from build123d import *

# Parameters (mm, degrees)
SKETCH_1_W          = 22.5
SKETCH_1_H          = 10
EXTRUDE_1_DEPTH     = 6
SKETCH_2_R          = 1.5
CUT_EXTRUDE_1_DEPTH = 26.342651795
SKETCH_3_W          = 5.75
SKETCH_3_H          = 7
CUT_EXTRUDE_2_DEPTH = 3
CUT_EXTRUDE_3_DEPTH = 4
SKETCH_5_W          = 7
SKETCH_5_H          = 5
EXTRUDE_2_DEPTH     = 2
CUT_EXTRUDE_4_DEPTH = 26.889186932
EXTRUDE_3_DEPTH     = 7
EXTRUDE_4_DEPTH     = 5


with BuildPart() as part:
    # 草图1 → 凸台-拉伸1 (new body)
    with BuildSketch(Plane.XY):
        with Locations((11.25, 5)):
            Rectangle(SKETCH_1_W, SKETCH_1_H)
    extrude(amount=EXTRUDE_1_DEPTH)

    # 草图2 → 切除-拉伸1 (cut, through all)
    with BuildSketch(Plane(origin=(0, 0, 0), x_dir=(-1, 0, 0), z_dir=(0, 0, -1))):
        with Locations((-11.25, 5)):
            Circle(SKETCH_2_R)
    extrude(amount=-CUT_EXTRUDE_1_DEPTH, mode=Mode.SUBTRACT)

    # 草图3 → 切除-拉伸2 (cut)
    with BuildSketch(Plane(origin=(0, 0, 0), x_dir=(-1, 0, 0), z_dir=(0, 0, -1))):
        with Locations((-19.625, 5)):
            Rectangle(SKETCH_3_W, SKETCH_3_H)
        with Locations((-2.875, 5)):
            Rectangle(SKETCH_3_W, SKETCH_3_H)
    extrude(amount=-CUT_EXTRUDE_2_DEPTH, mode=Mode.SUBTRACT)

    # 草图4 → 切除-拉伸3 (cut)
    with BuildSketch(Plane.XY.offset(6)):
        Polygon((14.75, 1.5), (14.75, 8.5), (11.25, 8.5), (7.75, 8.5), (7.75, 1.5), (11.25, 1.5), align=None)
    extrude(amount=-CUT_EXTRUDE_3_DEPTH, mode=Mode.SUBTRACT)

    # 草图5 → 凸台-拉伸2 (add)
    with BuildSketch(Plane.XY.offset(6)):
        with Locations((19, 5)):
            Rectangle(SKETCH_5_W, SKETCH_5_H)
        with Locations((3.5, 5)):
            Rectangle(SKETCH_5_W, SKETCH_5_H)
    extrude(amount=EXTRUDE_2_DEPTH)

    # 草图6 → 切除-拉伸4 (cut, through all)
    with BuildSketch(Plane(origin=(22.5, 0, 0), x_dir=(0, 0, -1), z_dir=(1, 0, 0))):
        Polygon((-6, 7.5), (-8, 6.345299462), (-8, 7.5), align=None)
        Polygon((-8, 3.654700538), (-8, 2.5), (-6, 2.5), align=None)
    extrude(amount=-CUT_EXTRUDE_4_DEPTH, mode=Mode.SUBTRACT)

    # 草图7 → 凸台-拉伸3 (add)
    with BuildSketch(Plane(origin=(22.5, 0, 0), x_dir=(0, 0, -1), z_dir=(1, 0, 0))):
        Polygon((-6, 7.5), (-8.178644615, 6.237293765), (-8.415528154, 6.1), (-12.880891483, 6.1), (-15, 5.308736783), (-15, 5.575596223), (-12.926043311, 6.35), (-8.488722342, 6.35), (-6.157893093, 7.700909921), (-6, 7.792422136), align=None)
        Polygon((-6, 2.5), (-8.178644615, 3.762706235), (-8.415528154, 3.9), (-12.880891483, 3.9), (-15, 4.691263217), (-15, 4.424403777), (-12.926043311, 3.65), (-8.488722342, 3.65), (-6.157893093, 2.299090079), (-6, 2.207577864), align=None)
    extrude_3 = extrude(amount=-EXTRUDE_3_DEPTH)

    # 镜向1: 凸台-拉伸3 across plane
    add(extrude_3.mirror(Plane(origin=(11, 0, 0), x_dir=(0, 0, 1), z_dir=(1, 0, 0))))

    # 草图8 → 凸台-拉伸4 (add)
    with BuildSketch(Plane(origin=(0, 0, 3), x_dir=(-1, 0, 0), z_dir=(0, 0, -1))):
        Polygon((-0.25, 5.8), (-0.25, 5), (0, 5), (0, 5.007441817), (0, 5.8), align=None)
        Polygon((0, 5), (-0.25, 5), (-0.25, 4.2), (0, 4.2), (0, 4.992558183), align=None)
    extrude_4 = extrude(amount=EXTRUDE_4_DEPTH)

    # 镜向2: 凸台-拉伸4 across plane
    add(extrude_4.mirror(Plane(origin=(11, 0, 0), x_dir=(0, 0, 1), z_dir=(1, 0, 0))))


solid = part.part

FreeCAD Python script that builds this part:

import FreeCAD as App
import Part
import Sketcher
from FreeCAD import Vector
Q = App.Units.Quantity


def add_polygon(sketch, points):
    """Adds a closed chain of lines whose ends are joined by coincident constraints."""
    first, n = sketch.GeometryCount, len(points)
    for a, b in zip(points, points[1:] + points[:1]):
        sketch.addGeometry(Part.LineSegment(App.Vector(*a, 0), App.Vector(*b, 0)), False)
    for i in range(n):
        sketch.addConstraint(Sketcher.Constraint("Coincident", first + i, 2, first + (i + 1) % n, 1))

doc = App.newDocument("Part")
body = doc.addObject("PartDesign::Body", "Body")

# Sketch on XY plane
sketch1 = body.newObject("Sketcher::SketchObject", "Sketch")
sketch1.AttachmentSupport = (doc.getObject("XY_Plane"), [""])
sketch1.MapMode = "FlatFace"
add_polygon(sketch1, [(0, 10), (0, 0), (22, 0), (22, 10)])  # lines 0-3
sketch1.addConstraint(Sketcher.Constraint("Vertical", 0))
sketch1.addConstraint(Sketcher.Constraint("Horizontal", 1))
sketch1.addConstraint(Sketcher.Constraint("Vertical", 2))
sketch1.addConstraint(Sketcher.Constraint("Horizontal", 3))
sketch1.addConstraint(Sketcher.Constraint("Coincident", 0, 2, -1, 1))
sketch1.addConstraint(Sketcher.Constraint("DistanceY", 0, 2, 0, 1, Q("10 mm")))
sketch1.addConstraint(Sketcher.Constraint("DistanceX", 1, 1, 1, 2, Q("22.5 mm")))
pad1 = body.newObject("PartDesign::Pad", "Pad")
pad1.Profile = sketch1
pad1.Length = 6

# Sketch on XY plane
sketch2 = body.newObject("Sketcher::SketchObject", "Sketch001")
sketch2.AttachmentSupport = (doc.getObject("XY_Plane"), [""])
sketch2.MapMode = "FlatFace"
sketch2.addGeometry(Part.Circle(Vector(11.2, 5, 0), Vector(0, 0, 1), 1.5), False)
sketch2.addConstraint(Sketcher.Constraint("Diameter", 0, Q("3 mm")))
sketch2.addConstraint(Sketcher.Constraint("DistanceY", -1, 1, 0, 3, Q("5 mm")))
sketch2.addConstraint(Sketcher.Constraint("DistanceX", -1, 1, 0, 3, Q("11.25 mm")))
pocket1 = body.newObject("PartDesign::Pocket", "Pocket")
pocket1.Profile = sketch2
pocket1.Type = "ThroughAll"
pocket1.Reversed = True

# Sketch on XY plane
sketch3 = body.newObject("Sketcher::SketchObject", "Sketch002")
sketch3.AttachmentSupport = (doc.getObject("XY_Plane"), [""])
sketch3.MapMode = "FlatFace"
add_polygon(sketch3, [(22, 8), (22, 2), (17, 2), (17, 8)])  # lines 0-3
add_polygon(sketch3, [(6, 8), (6, 2), (0, 2), (0, 8)])  # lines 4-7
sketch3.addConstraint(Sketcher.Constraint("Vertical", 0))
sketch3.addConstraint(Sketcher.Constraint("Horizontal", 1))
sketch3.addConstraint(Sketcher.Constraint("Vertical", 2))
sketch3.addConstraint(Sketcher.Constraint("Horizontal", 3))
sketch3.addConstraint(Sketcher.Constraint("Vertical", 4))
sketch3.addConstraint(Sketcher.Constraint("Horizontal", 5))
sketch3.addConstraint(Sketcher.Constraint("Vertical", 6))
sketch3.addConstraint(Sketcher.Constraint("Horizontal", 7))
sketch3.addConstraint(Sketcher.Constraint("PointOnObject", 5, 2, -2))
sketch3.addConstraint(Sketcher.Constraint("Horizontal", 1, 2, 4, 2))
sketch3.addConstraint(Sketcher.Constraint("Horizontal", 3, 2, 6, 2))
sketch3.addConstraint(Sketcher.Constraint("Equal", 3, 5))
sketch3.addConstraint(Sketcher.Constraint("DistanceY", 0, 2, 0, 1, Q("7 mm")))
sketch3.addConstraint(Sketcher.Constraint("DistanceX", 4, 2, 1, 2, Q("11 mm")))
sketch3.addConstraint(Sketcher.Constraint("DistanceX", 1, 2, 1, 1, Q("5.75 mm")))
sketch3.addConstraint(Sketcher.Constraint("DistanceY", -1, 1, 0, 2, Q("1.5 mm")))
pocket2 = body.newObject("PartDesign::Pocket", "Pocket001")
pocket2.Profile = sketch3
pocket2.Length = 3
pocket2.Reversed = True

# Sketch on XY plane
sketch4 = body.newObject("Sketcher::SketchObject", "Sketch003")
sketch4.AttachmentSupport = (doc.getObject("XY_Plane"), [""])
sketch4.MapMode = "FlatFace"
sketch4.AttachmentOffset = App.Placement(Vector(0, 0, 6), App.Rotation())
add_polygon(sketch4, [(15, 2), (15, 8), (8, 8), (8, 2)])  # lines 0-3
sketch4.addConstraint(Sketcher.Constraint("Vertical", 0))
sketch4.addConstraint(Sketcher.Constraint("Horizontal", 1))
sketch4.addConstraint(Sketcher.Constraint("Vertical", 2))
sketch4.addConstraint(Sketcher.Constraint("Horizontal", 3))
sketch4.addConstraint(Sketcher.Constraint("Equal", 3, 0))
sketch4.addConstraint(Sketcher.Constraint("DistanceX", 1, 2, 1, 1, Q("7 mm")))
sketch4.addConstraint(Sketcher.Constraint("DistanceY", -1, 1, 0, 2, Q("8.5 mm")))
sketch4.addConstraint(Sketcher.Constraint("DistanceX", -1, 1, 0, 2, Q("14.75 mm")))
pocket3 = body.newObject("PartDesign::Pocket", "Pocket002")
pocket3.Profile = sketch4
pocket3.Length = 4

# Sketch on XY plane
sketch5 = body.newObject("Sketcher::SketchObject", "Sketch004")
sketch5.AttachmentSupport = (doc.getObject("XY_Plane"), [""])
sketch5.MapMode = "FlatFace"
sketch5.AttachmentOffset = App.Placement(Vector(0, 0, 6), App.Rotation())
add_polygon(sketch5, [(16, 8), (16, 2), (22, 2), (22, 8)])  # lines 0-3
add_polygon(sketch5, [(0, 8), (0, 2), (7, 2), (7, 8)])  # lines 4-7
sketch5.addConstraint(Sketcher.Constraint("Vertical", 0))
sketch5.addConstraint(Sketcher.Constraint("Horizontal", 1))
sketch5.addConstraint(Sketcher.Constraint("Vertical", 2))
sketch5.addConstraint(Sketcher.Constraint("Horizontal", 3))
sketch5.addConstraint(Sketcher.Constraint("Vertical", 4))
sketch5.addConstraint(Sketcher.Constraint("Horizontal", 5))
sketch5.addConstraint(Sketcher.Constraint("Vertical", 6))
sketch5.addConstraint(Sketcher.Constraint("Horizontal", 7))
sketch5.addConstraint(Sketcher.Constraint("PointOnObject", 4, 2, -2))
sketch5.addConstraint(Sketcher.Constraint("Horizontal", 1, 2, 4, 2))
sketch5.addConstraint(Sketcher.Constraint("Horizontal", 3, 2, 6, 2))
sketch5.addConstraint(Sketcher.Constraint("Equal", 3, 5))
sketch5.addConstraint(Sketcher.Constraint("DistanceX", 1, 1, 1, 2, Q("7 mm")))
sketch5.addConstraint(Sketcher.Constraint("DistanceY", 0, 2, 0, 1, Q("5 mm")))
sketch5.addConstraint(Sketcher.Constraint("DistanceX", -1, 1, 0, 2, Q("15.5 mm")))
sketch5.addConstraint(Sketcher.Constraint("DistanceY", -1, 1, 0, 2, Q("2.5 mm")))
pad2 = body.newObject("PartDesign::Pad", "Pad001")
pad2.Profile = sketch5
pad2.Length = 2

# Sketch on YZ plane
sketch6 = body.newObject("Sketcher::SketchObject", "Sketch005")
sketch6.AttachmentSupport = (doc.getObject("YZ_Plane"), [""])
sketch6.MapMode = "FlatFace"
sketch6.AttachmentOffset = App.Placement(Vector(0, 0, 22.5), App.Rotation())
add_polygon(sketch6, [(6.3, 8), (7.5, 6), (7.5, 8)])  # lines 0-2
add_polygon(sketch6, [(3.7, 8), (2.5, 8), (2.5, 6)])  # lines 3-5
sketch6.addConstraint(Sketcher.Constraint("Vertical", 1))
sketch6.addConstraint(Sketcher.Constraint("Horizontal", 2))
sketch6.addConstraint(Sketcher.Constraint("Horizontal", 3))
sketch6.addConstraint(Sketcher.Constraint("Vertical", 4))
sketch6.addConstraint(Sketcher.Constraint("Horizontal", 2, 2, 3, 2))
sketch6.addConstraint(Sketcher.Constraint("Horizontal", 0, 2, 4, 2))
sketch6.addConstraint(Sketcher.Constraint("Equal", 2, 3))
sketch6.addConstraint(Sketcher.Constraint("DistanceY", 1, 1, 1, 2, Q("2 mm")))
sketch6.addConstraint(Sketcher.Constraint("Angle", 0, Q("-60 deg")))
sketch6.addConstraint(Sketcher.Constraint("DistanceY", -1, 1, 0, 2, Q("6 mm")))
sketch6.addConstraint(Sketcher.Constraint("DistanceX", 3, 2, 1, 2, Q("5 mm")))
sketch6.addConstraint(Sketcher.Constraint("DistanceX", -1, 1, 0, 2, Q("7.5 mm")))
pocket4 = body.newObject("PartDesign::Pocket", "Pocket003")
pocket4.Profile = sketch6
pocket4.Type = "ThroughAll"

# Sketch on YZ plane
sketch7 = body.newObject("Sketcher::SketchObject", "Sketch006")
sketch7.AttachmentSupport = (doc.getObject("YZ_Plane"), [""])
sketch7.MapMode = "FlatFace"
sketch7.AttachmentOffset = App.Placement(Vector(0, 0, 22.5), App.Rotation())
add_polygon(sketch7, [(6.24, 8.18), (7.5, 6), (7.79, 6), (7.7, 6.16), (6.35, 8.49), (6.35, 12.93), (5.58, 15), (5.31, 15), (6.1, 12.88), (6.1, 8.42)])  # lines 0-9
add_polygon(sketch7, [(2.5, 6), (3.76, 8.18), (3.9, 8.42), (3.9, 12.88), (4.69, 15), (4.42, 15), (3.65, 12.93), (3.65, 8.49), (2.3, 6.16), (2.21, 6)])  # lines 10-19
sketch7.addConstraint(Sketcher.Constraint("Horizontal", 1))
sketch7.addConstraint(Sketcher.Constraint("Vertical", 4))
sketch7.addConstraint(Sketcher.Constraint("Horizontal", 6))
sketch7.addConstraint(Sketcher.Constraint("Vertical", 8))
sketch7.addConstraint(Sketcher.Constraint("Vertical", 12))
sketch7.addConstraint(Sketcher.Constraint("Horizontal", 14))
sketch7.addConstraint(Sketcher.Constraint("Vertical", 16))
sketch7.addConstraint(Sketcher.Constraint("Horizontal", 19))
sketch7.addConstraint(Sketcher.Constraint("Parallel", 0, 2))
sketch7.addConstraint(Sketcher.Constraint("Parallel", 2, 3))
sketch7.addConstraint(Sketcher.Constraint("Parallel", 5, 7))
sketch7.addConstraint(Sketcher.Constraint("Parallel", 3, 9))
sketch7.addConstraint(Sketcher.Constraint("Parallel", 10, 11))
sketch7.addConstraint(Sketcher.Constraint("Parallel", 13, 15))
sketch7.addConstraint(Sketcher.Constraint("Parallel", 11, 17))
sketch7.addConstraint(Sketcher.Constraint("Parallel", 17, 18))
sketch7.addConstraint(Sketcher.Constraint("Horizontal", 9, 2, 10, 2))
sketch7.addConstraint(Sketcher.Constraint("Horizontal", 8, 2, 11, 2))
sketch7.addConstraint(Sketcher.Constraint("Horizontal", 7, 2, 12, 2))
sketch7.addConstraint(Sketcher.Constraint("Horizontal", 6, 2, 13, 2))
sketch7.addConstraint(Sketcher.Constraint("Horizontal", 4, 2, 15, 2))
sketch7.addConstraint(Sketcher.Constraint("Horizontal", 3, 2, 16, 2))
sketch7.addConstraint(Sketcher.Constraint("Horizontal", 2, 2, 17, 2))
sketch7.addConstraint(Sketcher.Constraint("Horizontal", 1, 2, 18, 2))
sketch7.addConstraint(Sketcher.Constraint("Equal", 6, 14))
sketch7.addConstraint(Sketcher.Constraint("Equal", 1, 19))
sketch7.addConstraint(Sketcher.Constraint("Equal", 0, 10))
sketch7.addConstraint(Sketcher.Constraint("DistanceY", -1, 1, 0, 2, Q("6 mm")))
sketch7.addConstraint(Sketcher.Constraint("DistanceY", -1, 1, 5, 2, Q("15 mm")))
sketch7.addConstraint(Sketcher.Constraint("DistanceX", -1, 1, 0, 2, Q("7.5 mm")))
sketch7.addConstraint(Sketcher.Constraint("DistanceX", -1, 1, 7, 2, Q("6.1 mm")))
sketch7.addConstraint(Sketcher.Constraint("DistanceX", -1, 1, 11, 2, Q("3.9 mm")))
sketch7.addConstraint(Sketcher.Constraint("DistanceX", 16, 2, 3, 2, Q("2.7 mm")))
sketch7.addConstraint(Sketcher.Constraint("DistanceY", 2, 2, 7, 2, Q("6.722998 mm")))
sketch7.addConstraint(Sketcher.Constraint("DistanceX", 6, 2, 6, 1, Q("0.266859 mm")))
sketch7.addConstraint(Sketcher.Constraint("DistanceY", 4, 1, 4, 2, Q("4.437321 mm")))
sketch7.addConstraint(Sketcher.Constraint("Distance", 0, Q("2.518118 mm")))
sketch7.addConstraint(Sketcher.Constraint("Distance", 5, Q("2.21382 mm")))
sketch7.addConstraint(Sketcher.Constraint("DistanceX", 1, 1, 1, 2, Q("0.292422 mm")))
sketch7.addConstraint(Sketcher.Constraint("DistanceY", 8, 2, 8, 1, Q("4.465363 mm")))
pad3 = body.newObject("PartDesign::Pad", "Pad002")
pad3.Profile = sketch7
pad3.Length = 7
pad3.Reversed = True
doc.recompute()

datumplane = body.newObject("PartDesign::Plane", "DatumPlane")
datumplane.AttachmentSupport = (doc.getObject("YZ_Plane"), [""])
datumplane.MapMode = "FlatFace"
datumplane.AttachmentOffset = App.Placement(Vector(0, 0, 11), App.Rotation())
mirrored = body.newObject("PartDesign::Mirrored", "Mirrored")
mirrored.Originals = [pad3]
mirrored.MirrorPlane = (datumplane, [""])
body.Tip = mirrored

# Sketch on XY plane
sketch8 = body.newObject("Sketcher::SketchObject", "Sketch007")
sketch8.AttachmentSupport = (doc.getObject("XY_Plane"), [""])
sketch8.MapMode = "FlatFace"
sketch8.AttachmentOffset = App.Placement(Vector(0, 0, 3), App.Rotation())
add_polygon(sketch8, [(0.25, 5.8), (0.25, 4.2), (0, 4.2), (0, 5.8)])  # lines 0-3
sketch8.addConstraint(Sketcher.Constraint("Vertical", 0))
sketch8.addConstraint(Sketcher.Constraint("Horizontal", 1))
sketch8.addConstraint(Sketcher.Constraint("Vertical", 2))
sketch8.addConstraint(Sketcher.Constraint("Horizontal", 3))
sketch8.addConstraint(Sketcher.Constraint("PointOnObject", 1, 2, -2))
sketch8.addConstraint(Sketcher.Constraint("DistanceY", 0, 2, 0, 1, Q("1.6 mm")))
sketch8.addConstraint(Sketcher.Constraint("DistanceX", 1, 2, 1, 1, Q("0.25 mm")))
sketch8.addConstraint(Sketcher.Constraint("DistanceY", -1, 1, 0, 2, Q("4.2 mm")))
pad4 = body.newObject("PartDesign::Pad", "Pad003")
pad4.Profile = sketch8
pad4.Length = 5
pad4.Reversed = True
doc.recompute()

datumplane2 = body.newObject("PartDesign::Plane", "DatumPlane001")
datumplane2.AttachmentSupport = (doc.getObject("YZ_Plane"), [""])
datumplane2.MapMode = "FlatFace"
datumplane2.AttachmentOffset = App.Placement(Vector(0, 0, 11), App.Rotation())
mirrored2 = body.newObject("PartDesign::Mirrored", "Mirrored001")
mirrored2.Originals = [pad4]
mirrored2.MirrorPlane = (datumplane2, [""])
body.Tip = mirrored2

doc.recompute()
